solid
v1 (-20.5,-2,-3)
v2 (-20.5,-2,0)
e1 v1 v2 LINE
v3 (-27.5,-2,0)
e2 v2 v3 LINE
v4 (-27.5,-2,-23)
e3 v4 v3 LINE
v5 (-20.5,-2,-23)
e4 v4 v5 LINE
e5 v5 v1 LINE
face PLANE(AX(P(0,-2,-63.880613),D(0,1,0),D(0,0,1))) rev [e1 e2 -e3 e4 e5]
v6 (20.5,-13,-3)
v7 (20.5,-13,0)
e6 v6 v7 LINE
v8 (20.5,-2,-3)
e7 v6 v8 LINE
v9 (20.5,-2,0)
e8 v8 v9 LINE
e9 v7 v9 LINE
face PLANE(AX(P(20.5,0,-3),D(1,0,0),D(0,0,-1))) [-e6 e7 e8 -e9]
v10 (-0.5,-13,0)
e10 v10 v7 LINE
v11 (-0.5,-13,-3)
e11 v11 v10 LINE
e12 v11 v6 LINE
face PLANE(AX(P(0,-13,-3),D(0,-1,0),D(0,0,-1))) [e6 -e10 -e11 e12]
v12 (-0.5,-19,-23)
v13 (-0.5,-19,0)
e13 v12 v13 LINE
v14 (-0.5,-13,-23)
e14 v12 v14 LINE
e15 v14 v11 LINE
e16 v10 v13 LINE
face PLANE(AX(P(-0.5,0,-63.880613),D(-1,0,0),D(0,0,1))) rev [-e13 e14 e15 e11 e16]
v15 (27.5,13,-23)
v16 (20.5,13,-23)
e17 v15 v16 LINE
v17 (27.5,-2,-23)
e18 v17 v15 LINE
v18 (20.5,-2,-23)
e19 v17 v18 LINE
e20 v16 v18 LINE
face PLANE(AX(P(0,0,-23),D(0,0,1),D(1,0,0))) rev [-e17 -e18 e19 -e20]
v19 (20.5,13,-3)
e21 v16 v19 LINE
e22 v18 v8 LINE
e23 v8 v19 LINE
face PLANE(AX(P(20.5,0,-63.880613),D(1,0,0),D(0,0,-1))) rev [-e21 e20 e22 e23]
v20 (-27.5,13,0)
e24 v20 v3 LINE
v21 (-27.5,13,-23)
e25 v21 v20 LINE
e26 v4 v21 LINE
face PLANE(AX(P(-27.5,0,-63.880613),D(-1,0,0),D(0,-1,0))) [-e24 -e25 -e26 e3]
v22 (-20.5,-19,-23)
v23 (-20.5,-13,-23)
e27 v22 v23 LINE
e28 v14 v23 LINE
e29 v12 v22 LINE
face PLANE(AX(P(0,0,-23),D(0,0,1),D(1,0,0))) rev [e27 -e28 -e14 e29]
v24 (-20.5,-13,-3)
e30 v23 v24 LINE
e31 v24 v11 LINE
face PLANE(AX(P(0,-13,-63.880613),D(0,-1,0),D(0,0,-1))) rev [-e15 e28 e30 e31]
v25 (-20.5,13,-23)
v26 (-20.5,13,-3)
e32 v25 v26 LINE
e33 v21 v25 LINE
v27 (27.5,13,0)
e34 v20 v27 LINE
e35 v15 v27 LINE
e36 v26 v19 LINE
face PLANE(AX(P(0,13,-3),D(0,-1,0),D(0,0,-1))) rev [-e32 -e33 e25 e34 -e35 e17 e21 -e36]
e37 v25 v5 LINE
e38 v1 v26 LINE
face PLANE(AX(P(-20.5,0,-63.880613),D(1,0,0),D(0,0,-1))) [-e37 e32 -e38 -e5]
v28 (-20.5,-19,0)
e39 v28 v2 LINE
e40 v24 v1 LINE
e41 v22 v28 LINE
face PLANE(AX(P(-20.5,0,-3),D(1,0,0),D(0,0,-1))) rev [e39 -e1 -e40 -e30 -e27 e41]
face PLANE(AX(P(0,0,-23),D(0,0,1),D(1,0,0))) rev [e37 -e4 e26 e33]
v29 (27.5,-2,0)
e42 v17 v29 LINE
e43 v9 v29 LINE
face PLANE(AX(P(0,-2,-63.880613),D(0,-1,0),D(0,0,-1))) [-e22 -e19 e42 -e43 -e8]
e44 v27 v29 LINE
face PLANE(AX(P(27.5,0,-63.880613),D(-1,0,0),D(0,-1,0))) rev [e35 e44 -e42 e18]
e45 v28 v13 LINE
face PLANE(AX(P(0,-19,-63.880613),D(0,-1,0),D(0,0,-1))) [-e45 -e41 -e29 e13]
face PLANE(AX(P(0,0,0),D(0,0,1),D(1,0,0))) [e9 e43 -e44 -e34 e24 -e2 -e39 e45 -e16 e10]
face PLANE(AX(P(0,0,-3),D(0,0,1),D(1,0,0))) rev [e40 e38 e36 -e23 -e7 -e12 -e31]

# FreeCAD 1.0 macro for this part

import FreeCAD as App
import Part
import Sketcher


def add_polygon(sketch, points):
    """Adds a closed chain of lines whose ends are joined by coincident constraints."""
    first, n = sketch.GeometryCount, len(points)
    for a, b in zip(points, points[1:] + points[:1]):
        sketch.addGeometry(Part.LineSegment(App.Vector(*a, 0), App.Vector(*b, 0)), False)
    for i in range(n):
        sketch.addConstraint(Sketcher.Constraint("Coincident", first + i, 2, first + (i + 1) % n, 1))

doc = App.newDocument("Part")
body = doc.addObject("PartDesign::Body", "Body")

sketch1 = body.newObject("Sketcher::SketchObject", "Sketch")
sketch1.AttachmentSupport = (doc.getObject("XY_Plane"), [""])
sketch1.MapMode = "FlatFace"
add_polygon(sketch1, [(-20, 13), (-20, -13), (20, -13), (20, 13)])
sketch1.addConstraint([
    Sketcher.Constraint("Vertical", 0),
    Sketcher.Constraint("Horizontal", 1),
    Sketcher.Constraint("Vertical", 2),
    Sketcher.Constraint("Horizontal", 3),
    Sketcher.Constraint("Symmetric", 0, 2, 2, 2, -1, 1),
    Sketcher.Constraint("DistanceX", 1, 1, 1, 2, 41.0),
    Sketcher.Constraint("DistanceY", 0, 2, 0, 1, 26.0),
])
pad1 = body.newObject("PartDesign::Pad", "Pad")
pad1.Profile = sketch1
pad1.Length = 3
pad1.Reversed = True

sketch2 = body.newObject("Sketcher::SketchObject", "Sketch001")
sketch2.AttachmentSupport = (doc.getObject("XY_Plane"), [""])
sketch2.MapMode = "FlatFace"
add_polygon(sketch2, [(-20, -13), (-20, -19), (0, -19), (0, -13)])
add_polygon(sketch2, [(-28, 13), (-28, -2), (-20, -2), (-20, 13)])
add_polygon(sketch2, [(20, 13), (20, -2), (28, -2), (28, 13)])
sketch2.addConstraint([
    Sketcher.Constraint("Vertical", 0),
    Sketcher.Constraint("Horizontal", 1),
    Sketcher.Constraint("Vertical", 2),
    Sketcher.Constraint("Horizontal", 3),
    Sketcher.Constraint("Vertical", 4),
    Sketcher.Constraint("Horizontal", 5),
    Sketcher.Constraint("Vertical", 6),
    Sketcher.Constraint("Horizontal", 7),
    Sketcher.Constraint("Vertical", 8),
    Sketcher.Constraint("Horizontal", 9),
    Sketcher.Constraint("Vertical", 10),
    Sketcher.Constraint("Horizontal", 11),
    Sketcher.Constraint("Symmetric", 3, 2, 11, 2, -1, 1),
    Sketcher.Constraint("Symmetric", 5, 2, 8, 2, -2),
    Sketcher.Constraint("Symmetric", 7, 2, 10, 2, -2),
    Sketcher.Constraint("DistanceX", 1, 1, 1, 2, 20.0),
    Sketcher.Constraint("DistanceX", 5, 1, 5, 2, 7.0),
    Sketcher.Constraint("DistanceY", 0, 2, 0, 1, 6.0),
    Sketcher.Constraint("DistanceY", 4, 2, 4, 1, 15.0),
    Sketcher.Constraint("DistanceY", 0, 2, -1, 1, 19.0),
    Sketcher.Constraint("DistanceX", 2, 2, 8, 2, 21.0),
])
pad2 = body.newObject("PartDesign::Pad", "Pad001")
pad2.Profile = sketch2
pad2.Length = 23
pad2.Reversed = True

doc.recompute()
